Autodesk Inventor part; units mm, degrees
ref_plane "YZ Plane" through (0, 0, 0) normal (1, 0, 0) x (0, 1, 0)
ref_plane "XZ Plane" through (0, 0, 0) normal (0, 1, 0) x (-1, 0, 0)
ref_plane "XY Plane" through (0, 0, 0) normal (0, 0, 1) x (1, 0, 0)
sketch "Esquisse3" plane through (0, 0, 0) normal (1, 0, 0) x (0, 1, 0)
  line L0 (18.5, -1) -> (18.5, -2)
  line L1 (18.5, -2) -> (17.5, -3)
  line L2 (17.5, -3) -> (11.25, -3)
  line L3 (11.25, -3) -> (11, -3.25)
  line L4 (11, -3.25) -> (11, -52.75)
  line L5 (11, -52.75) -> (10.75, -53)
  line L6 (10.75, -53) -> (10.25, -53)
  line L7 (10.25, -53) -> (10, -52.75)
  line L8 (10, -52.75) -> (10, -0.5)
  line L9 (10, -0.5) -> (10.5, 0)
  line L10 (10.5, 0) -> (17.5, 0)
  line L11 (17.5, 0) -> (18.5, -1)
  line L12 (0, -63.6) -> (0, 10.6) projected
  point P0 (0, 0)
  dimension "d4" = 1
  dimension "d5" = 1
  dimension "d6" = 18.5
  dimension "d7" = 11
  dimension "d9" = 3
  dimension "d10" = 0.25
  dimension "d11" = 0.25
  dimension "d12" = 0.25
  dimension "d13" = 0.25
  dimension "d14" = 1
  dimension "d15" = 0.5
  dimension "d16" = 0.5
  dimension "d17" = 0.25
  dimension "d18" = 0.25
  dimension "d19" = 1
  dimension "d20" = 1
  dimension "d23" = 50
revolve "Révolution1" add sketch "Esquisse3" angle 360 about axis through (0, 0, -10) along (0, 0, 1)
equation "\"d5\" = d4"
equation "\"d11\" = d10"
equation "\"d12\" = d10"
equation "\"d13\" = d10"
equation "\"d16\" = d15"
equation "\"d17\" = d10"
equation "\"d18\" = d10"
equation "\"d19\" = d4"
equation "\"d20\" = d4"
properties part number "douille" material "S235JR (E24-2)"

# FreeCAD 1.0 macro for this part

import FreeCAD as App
import Part
import Sketcher
from FreeCAD import Vector


def add_polygon(sketch, points):
    """Adds a closed chain of lines whose ends are joined by coincident constraints."""
    first, n = sketch.GeometryCount, len(points)
    for a, b in zip(points, points[1:] + points[:1]):
        sketch.addGeometry(Part.LineSegment(App.Vector(*a, 0), App.Vector(*b, 0)), False)
    for i in range(n):
        sketch.addConstraint(Sketcher.Constraint("Coincident", first + i, 2, first + (i + 1) % n, 1))

doc = App.newDocument("Part")
params = doc.addObject("Spreadsheet::Sheet", "Params")
for row, (alias, value) in enumerate([
    ("sketch1_height", "1 mm"),
    ("sketch1_width", "0.5 mm"),
    ("sketch1_height2", "49.5 mm"),
    ("revolution_angle", "360 deg"),
], start=1):
    params.set(f"A{row}", alias)
    params.set(f"B{row}", "=" + value)
    params.setAlias(f"B{row}", alias)

body = doc.addObject("PartDesign::Body", "Body")

sketch1 = body.newObject("Sketcher::SketchObject", "Sketch")
sketch1.AttachmentSupport = (doc.getObject("YZ_Plane"), [""])
sketch1.MapMode = "FlatFace"
add_polygon(sketch1, [(18.5, -2), (18.5, -1), (17.5, 0), (10.5, 0), (10, -0.5), (10, -52.75), (10.25, -53), (10.75, -53), (11, -52.75), (11, -3.25), (11.25, -3), (17.5, -3)])
sketch1.addConstraint(Sketcher.Constraint("Vertical", 0))
sketch1.addConstraint(Sketcher.Constraint("Horizontal", 2))
sketch1.addConstraint(Sketcher.Constraint("Vertical", 4))
sketch1.addConstraint(Sketcher.Constraint("Horizontal", 6))
sketch1.addConstraint(Sketcher.Constraint("Vertical", 8))
sketch1.addConstraint(Sketcher.Constraint("Horizontal", 10))
sketch1.addConstraint(Sketcher.Constraint("PointOnObject", 1, 2, -1))
sketch1.addConstraint(Sketcher.Constraint("Perpendicular", 1, 3))
sketch1.addConstraint(Sketcher.Constraint("Perpendicular", 3, 5))
sketch1.addConstraint(Sketcher.Constraint("Perpendicular", 5, 7))
sketch1.addConstraint(Sketcher.Constraint("Parallel", 7, 9))
sketch1.addConstraint(Sketcher.Constraint("Parallel", 9, 11))
sketch1.addConstraint(Sketcher.Constraint("Horizontal", 4, 2, 7, 2))
sketch1.addConstraint(Sketcher.Constraint("Vertical", 1, 2, 10, 2))
sketch1.addConstraint(Sketcher.Constraint("Equal", 5, 7))
sketch1.addConstraint(Sketcher.Constraint("Equal", 7, 9))
sketch1.addConstraint(Sketcher.Constraint("DistanceY", 0, 1, 0, 2, 1.0))
sketch1.addConstraint(Sketcher.Constraint("DistanceX", 6, 1, 6, 2, 0.5))
sketch1.addConstraint(Sketcher.Constraint("DistanceY", 0, 2, -1, 1, 1.0))
sketch1.addConstraint(Sketcher.Constraint("DistanceX", -1, 1, 7, 2, 11.0))
sketch1.addConstraint(Sketcher.Constraint("DistanceX", 4, 2, 7, 2, 1.0))
sketch1.addConstraint(Sketcher.Constraint("DistanceX", -1, 1, 0, 2, 18.5))
sketch1.addConstraint(Sketcher.Constraint("DistanceY", 3, 2, -1, 1, 0.5))
sketch1.addConstraint(Sketcher.Constraint("DistanceY", 8, 1, 8, 2, 49.5))
sketch1.setExpression("Constraints[28]", "Params.sketch1_height")
sketch1.setExpression("Constraints[29]", "Params.sketch1_width")
sketch1.setExpression("Constraints[35]", "Params.sketch1_height2")
revolution = body.newObject("PartDesign::Revolution", "Revolution")
revolution.Profile = sketch1
revolution.ReferenceAxis = (sketch1, ["V_Axis"])
revolution.setExpression("Angle", "Params.revolution_angle")

doc.recompute()
